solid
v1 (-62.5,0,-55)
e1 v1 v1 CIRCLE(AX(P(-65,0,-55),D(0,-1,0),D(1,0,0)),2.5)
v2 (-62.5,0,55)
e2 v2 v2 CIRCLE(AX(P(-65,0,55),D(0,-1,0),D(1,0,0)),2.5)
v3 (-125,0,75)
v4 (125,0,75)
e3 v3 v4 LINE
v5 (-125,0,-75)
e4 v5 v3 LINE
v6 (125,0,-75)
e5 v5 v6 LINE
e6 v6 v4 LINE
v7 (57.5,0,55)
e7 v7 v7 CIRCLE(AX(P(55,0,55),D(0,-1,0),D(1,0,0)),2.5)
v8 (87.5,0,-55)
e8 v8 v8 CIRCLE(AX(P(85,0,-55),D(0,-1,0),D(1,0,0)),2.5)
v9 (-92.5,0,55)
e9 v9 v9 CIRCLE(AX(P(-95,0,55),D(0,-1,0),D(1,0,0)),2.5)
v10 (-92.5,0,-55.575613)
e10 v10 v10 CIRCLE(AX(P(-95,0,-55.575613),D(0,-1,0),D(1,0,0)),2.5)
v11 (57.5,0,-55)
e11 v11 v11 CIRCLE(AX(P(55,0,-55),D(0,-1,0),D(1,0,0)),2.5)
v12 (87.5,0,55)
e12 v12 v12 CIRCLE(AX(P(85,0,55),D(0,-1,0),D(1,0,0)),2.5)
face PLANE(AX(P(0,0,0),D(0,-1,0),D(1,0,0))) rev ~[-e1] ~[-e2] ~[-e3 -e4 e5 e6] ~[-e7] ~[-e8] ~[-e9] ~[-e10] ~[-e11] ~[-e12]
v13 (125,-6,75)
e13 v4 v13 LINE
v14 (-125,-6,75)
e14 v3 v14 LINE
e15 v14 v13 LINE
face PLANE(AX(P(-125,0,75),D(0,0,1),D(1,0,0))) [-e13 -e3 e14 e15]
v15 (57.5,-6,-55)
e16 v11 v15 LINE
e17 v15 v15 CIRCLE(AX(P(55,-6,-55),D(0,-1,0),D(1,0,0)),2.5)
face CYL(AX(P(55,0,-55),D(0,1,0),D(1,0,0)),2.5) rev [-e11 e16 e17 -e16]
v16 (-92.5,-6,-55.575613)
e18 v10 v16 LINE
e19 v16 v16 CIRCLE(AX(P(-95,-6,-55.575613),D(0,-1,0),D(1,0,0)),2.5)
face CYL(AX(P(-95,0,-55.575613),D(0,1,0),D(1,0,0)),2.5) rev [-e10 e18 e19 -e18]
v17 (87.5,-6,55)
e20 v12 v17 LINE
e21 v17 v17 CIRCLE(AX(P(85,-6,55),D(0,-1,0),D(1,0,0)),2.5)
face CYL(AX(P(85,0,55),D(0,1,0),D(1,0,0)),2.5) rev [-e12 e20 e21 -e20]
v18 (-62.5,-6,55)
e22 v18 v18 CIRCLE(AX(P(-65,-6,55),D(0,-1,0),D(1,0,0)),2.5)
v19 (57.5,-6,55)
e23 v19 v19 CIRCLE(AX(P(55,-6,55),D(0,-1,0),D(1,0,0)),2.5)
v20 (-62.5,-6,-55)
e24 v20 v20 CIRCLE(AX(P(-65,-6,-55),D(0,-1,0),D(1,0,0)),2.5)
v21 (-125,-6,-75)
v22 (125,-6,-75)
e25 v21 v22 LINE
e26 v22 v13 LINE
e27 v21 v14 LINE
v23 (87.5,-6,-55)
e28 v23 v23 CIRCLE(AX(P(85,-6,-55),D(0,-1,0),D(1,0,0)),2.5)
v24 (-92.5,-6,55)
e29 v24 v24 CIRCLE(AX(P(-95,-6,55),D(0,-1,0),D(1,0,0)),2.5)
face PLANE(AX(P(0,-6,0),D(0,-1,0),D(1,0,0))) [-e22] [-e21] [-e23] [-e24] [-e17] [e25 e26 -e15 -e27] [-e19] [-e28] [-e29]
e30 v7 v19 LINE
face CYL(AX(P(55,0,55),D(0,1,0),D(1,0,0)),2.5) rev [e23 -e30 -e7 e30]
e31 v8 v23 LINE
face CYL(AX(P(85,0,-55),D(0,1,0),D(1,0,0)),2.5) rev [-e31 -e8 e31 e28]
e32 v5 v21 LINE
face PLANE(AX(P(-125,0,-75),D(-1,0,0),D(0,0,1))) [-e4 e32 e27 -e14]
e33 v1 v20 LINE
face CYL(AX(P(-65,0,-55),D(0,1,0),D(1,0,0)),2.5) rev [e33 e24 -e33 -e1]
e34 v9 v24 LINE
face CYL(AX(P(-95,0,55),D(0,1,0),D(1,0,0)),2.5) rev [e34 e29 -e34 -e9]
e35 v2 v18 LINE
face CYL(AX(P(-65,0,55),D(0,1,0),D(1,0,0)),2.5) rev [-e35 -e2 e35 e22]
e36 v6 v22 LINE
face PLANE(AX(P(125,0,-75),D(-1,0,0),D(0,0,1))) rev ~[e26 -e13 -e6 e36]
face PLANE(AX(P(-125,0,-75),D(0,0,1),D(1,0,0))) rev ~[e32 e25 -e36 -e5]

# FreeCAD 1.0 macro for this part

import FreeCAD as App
import Part
import Sketcher
from FreeCAD import Vector

doc = App.newDocument("Part")
body = doc.addObject("PartDesign::Body", "Body")

sketch1 = doc.addObject("Sketcher::SketchObject", "Sketch")
body.addObject(sketch1)
sketch1.AttachmentSupport = (doc.XZ_Plane, [""])
sketch1.MapMode = "FlatFace"
sketch1.addGeometry([
    Part.LineSegment(Vector(-125, 75, 0), Vector(-125, -75, 0)),
    Part.LineSegment(Vector(-125, -75, 0), Vector(125, -75, 0)),
    Part.LineSegment(Vector(125, -75, 0), Vector(125, 75, 0)),
    Part.LineSegment(Vector(125, 75, 0), Vector(-125, 75, 0)),
    Part.Circle(Vector(-95, -55.6, 0), Vector(0, 0, 1), 2.5),
    Part.Circle(Vector(-65, -55, 0), Vector(0, 0, 1), 2.5),
    Part.Circle(Vector(55, -55, 0), Vector(0, 0, 1), 2.5),
    Part.Circle(Vector(85, -55, 0), Vector(0, 0, 1), 2.5),
    Part.Circle(Vector(-95, 55, 0), Vector(0, 0, 1), 2.5),
    Part.Circle(Vector(-65, 55, 0), Vector(0, 0, 1), 2.5),
    Part.Circle(Vector(55, 55, 0), Vector(0, 0, 1), 2.5),
    Part.Circle(Vector(85, 55, 0), Vector(0, 0, 1), 2.5),
], False)
sketch1.addConstraint([
    Sketcher.Constraint("Coincident", 0, 2, 1, 1),
    Sketcher.Constraint("Coincident", 1, 2, 2, 1),
    Sketcher.Constraint("Coincident", 2, 2, 3, 1),
    Sketcher.Constraint("Coincident", 3, 2, 0, 1),
    Sketcher.Constraint("Vertical", 0),
    Sketcher.Constraint("Horizontal", 1),
    Sketcher.Constraint("Vertical", 2),
    Sketcher.Constraint("Horizontal", 3),
    Sketcher.Constraint("Equal", 4, 5),
    Sketcher.Constraint("Equal", 5, 6),
    Sketcher.Constraint("Equal", 6, 7),
    Sketcher.Constraint("Equal", 7, 8),
    Sketcher.Constraint("Equal", 8, 9),
    Sketcher.Constraint("Equal", 9, 10),
    Sketcher.Constraint("Equal", 10, 11),
    Sketcher.Constraint("Symmetric", 0, 2, 2, 2, -1, 1),
    Sketcher.Constraint("Symmetric", 5, 3, 9, 3, -1),
    Sketcher.Constraint("Symmetric", 6, 3, 10, 3, -1),
    Sketcher.Constraint("Symmetric", 7, 3, 11, 3, -1),
    Sketcher.Constraint("Horizontal", 5, 3, 6, 3),
    Sketcher.Constraint("Horizontal", 6, 3, 7, 3),
    Sketcher.Constraint("Horizontal", 8, 3, 9, 3),
    Sketcher.Constraint("Vertical", 4, 3, 8, 3),
    Sketcher.Constraint("Diameter", 4, 5.0),
    Sketcher.Constraint("DistanceX", 1, 1, 1, 2, 250.0),
    Sketcher.Constraint("DistanceY", 0, 2, 0, 1, 150.0),
    Sketcher.Constraint("DistanceX", 4, 3, -1, 1, 95.0),
    Sketcher.Constraint("DistanceX", 5, 3, -1, 1, 65.0),
    Sketcher.Constraint("DistanceY", 5, 3, -1, 1, 55.0),
    Sketcher.Constraint("DistanceX", -1, 1, 6, 3, 55.0),
    Sketcher.Constraint("DistanceX", -1, 1, 7, 3, 85.0),
    Sketcher.Constraint("DistanceY", 4, 3, -1, 1, 55.575613),
])
pad1 = doc.addObject("PartDesign::Pad", "Pad")
body.addObject(pad1)
pad1.Profile = sketch1
pad1.Length = 6

doc.recompute()
